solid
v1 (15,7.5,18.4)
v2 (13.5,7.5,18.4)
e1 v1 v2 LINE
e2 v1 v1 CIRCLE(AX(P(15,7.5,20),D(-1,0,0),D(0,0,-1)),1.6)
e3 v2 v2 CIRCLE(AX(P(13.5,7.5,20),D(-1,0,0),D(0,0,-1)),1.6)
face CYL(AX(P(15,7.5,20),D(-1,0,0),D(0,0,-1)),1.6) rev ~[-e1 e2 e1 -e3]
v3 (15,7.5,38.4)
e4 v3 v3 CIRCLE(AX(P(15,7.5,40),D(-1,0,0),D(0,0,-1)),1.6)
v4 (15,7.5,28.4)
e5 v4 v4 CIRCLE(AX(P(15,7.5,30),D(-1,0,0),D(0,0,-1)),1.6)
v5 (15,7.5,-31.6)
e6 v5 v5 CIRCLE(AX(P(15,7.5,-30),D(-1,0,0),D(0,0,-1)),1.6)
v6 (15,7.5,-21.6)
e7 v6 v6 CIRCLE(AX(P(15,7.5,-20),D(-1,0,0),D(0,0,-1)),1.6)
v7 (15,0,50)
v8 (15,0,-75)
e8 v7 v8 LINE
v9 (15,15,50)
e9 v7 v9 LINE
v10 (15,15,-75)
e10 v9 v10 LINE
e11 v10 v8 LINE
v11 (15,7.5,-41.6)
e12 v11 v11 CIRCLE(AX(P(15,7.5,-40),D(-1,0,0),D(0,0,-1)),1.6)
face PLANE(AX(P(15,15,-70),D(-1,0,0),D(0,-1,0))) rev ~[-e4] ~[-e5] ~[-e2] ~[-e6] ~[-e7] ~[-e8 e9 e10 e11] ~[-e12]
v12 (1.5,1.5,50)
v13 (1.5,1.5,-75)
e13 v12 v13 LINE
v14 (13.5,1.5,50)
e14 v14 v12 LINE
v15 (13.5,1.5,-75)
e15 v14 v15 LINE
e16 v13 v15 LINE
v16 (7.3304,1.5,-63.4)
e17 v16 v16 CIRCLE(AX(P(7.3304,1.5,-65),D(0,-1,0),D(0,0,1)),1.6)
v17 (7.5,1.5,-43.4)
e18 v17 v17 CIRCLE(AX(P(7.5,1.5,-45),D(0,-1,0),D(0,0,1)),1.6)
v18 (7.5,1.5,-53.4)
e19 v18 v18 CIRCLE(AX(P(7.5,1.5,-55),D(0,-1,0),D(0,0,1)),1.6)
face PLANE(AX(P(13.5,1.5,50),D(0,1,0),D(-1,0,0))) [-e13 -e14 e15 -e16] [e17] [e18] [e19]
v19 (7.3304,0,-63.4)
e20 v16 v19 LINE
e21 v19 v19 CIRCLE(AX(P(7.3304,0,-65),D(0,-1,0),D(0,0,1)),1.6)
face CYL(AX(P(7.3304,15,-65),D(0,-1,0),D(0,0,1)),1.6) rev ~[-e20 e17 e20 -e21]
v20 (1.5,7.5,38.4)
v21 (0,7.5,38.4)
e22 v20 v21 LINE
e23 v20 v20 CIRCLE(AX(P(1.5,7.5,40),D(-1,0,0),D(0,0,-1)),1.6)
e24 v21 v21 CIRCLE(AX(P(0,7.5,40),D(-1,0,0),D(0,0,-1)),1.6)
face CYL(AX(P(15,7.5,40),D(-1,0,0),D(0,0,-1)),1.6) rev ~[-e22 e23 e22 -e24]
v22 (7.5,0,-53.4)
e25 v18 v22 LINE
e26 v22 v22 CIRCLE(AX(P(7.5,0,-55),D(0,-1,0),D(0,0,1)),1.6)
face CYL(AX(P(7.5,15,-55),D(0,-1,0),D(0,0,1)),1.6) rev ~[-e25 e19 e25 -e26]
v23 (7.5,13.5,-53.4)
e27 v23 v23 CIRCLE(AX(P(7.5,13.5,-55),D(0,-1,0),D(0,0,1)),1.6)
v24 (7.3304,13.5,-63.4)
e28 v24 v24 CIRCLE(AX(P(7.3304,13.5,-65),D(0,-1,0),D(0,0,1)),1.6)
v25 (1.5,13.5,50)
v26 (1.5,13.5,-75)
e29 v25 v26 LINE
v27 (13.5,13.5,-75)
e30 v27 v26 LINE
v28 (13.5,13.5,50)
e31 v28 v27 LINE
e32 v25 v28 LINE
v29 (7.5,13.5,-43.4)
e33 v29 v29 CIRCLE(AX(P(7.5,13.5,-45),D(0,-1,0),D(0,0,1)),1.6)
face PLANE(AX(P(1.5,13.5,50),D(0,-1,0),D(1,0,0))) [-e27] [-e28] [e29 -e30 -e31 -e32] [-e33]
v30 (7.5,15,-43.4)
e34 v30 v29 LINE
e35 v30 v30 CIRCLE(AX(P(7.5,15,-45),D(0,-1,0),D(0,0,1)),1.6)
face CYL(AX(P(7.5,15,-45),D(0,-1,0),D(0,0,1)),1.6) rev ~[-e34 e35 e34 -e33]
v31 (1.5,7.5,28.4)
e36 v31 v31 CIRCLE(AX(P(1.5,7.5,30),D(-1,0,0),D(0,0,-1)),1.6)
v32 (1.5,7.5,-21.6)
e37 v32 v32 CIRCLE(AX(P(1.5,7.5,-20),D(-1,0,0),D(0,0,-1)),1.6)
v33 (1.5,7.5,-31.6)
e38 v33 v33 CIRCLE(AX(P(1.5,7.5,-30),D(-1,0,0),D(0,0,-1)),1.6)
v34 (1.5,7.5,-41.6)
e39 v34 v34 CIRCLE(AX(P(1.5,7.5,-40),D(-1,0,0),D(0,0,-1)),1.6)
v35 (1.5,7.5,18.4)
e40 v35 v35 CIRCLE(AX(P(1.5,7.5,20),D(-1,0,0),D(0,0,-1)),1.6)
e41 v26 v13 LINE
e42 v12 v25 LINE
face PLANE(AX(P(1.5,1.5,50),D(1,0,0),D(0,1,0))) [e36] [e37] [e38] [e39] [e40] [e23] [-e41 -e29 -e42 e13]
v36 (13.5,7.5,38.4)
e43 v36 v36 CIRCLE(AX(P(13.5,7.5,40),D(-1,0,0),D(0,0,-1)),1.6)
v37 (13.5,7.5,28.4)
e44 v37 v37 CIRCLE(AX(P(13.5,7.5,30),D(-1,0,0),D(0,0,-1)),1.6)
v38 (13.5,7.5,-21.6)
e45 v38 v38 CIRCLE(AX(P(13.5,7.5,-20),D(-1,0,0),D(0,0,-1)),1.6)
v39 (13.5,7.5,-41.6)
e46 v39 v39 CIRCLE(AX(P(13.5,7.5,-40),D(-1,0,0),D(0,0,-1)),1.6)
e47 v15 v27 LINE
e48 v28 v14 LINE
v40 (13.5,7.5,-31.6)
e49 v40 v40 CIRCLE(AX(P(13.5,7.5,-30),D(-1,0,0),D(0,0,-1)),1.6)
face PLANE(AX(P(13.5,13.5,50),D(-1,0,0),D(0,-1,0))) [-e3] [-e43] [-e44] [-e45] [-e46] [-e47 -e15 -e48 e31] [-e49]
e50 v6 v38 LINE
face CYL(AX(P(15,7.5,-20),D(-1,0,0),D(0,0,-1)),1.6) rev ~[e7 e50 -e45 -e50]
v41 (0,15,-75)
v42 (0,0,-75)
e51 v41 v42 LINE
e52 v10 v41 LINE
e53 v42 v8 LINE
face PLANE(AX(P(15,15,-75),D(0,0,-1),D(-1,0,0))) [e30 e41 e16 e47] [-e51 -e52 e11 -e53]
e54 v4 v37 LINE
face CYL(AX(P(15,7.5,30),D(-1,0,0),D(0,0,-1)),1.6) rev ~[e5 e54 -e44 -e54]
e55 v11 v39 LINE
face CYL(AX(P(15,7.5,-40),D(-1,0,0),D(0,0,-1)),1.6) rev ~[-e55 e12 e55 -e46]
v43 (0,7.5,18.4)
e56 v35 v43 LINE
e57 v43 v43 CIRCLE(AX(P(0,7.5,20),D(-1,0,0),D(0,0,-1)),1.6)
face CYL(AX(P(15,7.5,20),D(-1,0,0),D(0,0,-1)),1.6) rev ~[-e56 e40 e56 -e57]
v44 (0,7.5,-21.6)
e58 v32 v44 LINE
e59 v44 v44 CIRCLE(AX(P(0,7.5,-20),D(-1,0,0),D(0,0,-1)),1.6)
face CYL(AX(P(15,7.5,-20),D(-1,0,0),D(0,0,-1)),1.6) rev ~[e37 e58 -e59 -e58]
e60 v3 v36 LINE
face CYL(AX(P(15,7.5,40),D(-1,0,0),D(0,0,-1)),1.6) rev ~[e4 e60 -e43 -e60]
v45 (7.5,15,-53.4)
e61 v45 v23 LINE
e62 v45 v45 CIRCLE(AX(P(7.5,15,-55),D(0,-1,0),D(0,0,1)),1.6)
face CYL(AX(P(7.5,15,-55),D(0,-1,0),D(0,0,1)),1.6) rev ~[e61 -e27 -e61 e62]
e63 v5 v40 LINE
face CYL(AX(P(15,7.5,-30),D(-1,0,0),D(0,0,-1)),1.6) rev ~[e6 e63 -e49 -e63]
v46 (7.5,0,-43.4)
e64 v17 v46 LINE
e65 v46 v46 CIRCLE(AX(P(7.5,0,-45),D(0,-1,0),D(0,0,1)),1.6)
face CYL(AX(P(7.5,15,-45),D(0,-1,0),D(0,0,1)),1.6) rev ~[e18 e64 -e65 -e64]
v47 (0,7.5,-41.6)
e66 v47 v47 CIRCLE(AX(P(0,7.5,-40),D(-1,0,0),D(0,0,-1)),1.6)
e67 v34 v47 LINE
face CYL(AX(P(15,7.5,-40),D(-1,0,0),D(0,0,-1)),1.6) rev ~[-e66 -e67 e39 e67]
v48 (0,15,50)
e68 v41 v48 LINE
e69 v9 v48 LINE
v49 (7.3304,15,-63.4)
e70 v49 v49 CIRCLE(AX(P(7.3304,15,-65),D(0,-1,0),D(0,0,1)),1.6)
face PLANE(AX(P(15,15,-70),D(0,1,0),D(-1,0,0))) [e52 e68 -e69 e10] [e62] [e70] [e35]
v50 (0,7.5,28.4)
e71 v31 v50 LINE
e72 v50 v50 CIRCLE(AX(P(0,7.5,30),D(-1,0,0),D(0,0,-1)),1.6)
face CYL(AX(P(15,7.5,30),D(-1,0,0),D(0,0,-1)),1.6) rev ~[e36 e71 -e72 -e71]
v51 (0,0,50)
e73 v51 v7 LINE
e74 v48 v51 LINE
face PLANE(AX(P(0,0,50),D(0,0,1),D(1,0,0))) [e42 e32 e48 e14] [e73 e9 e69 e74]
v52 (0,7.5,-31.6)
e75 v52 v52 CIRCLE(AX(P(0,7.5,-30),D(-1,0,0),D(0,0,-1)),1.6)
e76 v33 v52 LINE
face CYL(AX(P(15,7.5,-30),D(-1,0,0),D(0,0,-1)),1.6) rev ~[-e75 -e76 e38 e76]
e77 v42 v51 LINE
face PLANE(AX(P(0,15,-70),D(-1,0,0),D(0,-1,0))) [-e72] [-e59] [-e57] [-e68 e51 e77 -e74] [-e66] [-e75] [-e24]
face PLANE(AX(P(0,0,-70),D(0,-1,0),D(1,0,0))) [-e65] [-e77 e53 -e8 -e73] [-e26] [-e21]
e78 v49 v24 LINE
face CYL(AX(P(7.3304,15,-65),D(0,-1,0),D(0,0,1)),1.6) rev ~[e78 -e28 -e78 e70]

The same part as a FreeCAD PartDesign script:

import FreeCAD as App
import Part
import Sketcher
from FreeCAD import Vector
Q = App.Units.Quantity


def add_polygon(sketch, points):
    """Adds a closed chain of lines whose ends are joined by coincident constraints."""
    first, n = sketch.GeometryCount, len(points)
    for a, b in zip(points, points[1:] + points[:1]):
        sketch.addGeometry(Part.LineSegment(App.Vector(*a, 0), App.Vector(*b, 0)), False)
    for i in range(n):
        sketch.addConstraint(Sketcher.Constraint("Coincident", first + i, 2, first + (i + 1) % n, 1))

doc = App.newDocument("Part")
body = doc.addObject("PartDesign::Body", "Body")

sketch1 = body.newObject("Sketcher::SketchObject", "Sketch")
sketch1.AttachmentSupport = (doc.getObject("XY_Plane"), [""])
sketch1.MapMode = "FlatFace"
add_polygon(sketch1, [(0, 15), (0, 0), (15, 0), (15, 15)])
sketch1.addConstraint([
    Sketcher.Constraint("Vertical", 0),
    Sketcher.Constraint("Horizontal", 1),
    Sketcher.Constraint("Vertical", 2),
    Sketcher.Constraint("Horizontal", 3),
    Sketcher.Constraint("Coincident", 0, 2, -1, 1),
    Sketcher.Constraint("Equal", 3, 0),
    Sketcher.Constraint("DistanceX", 1, 1, 1, 2, Q("15 mm")),
])
pad1 = body.newObject("PartDesign::Pad", "Pad")
pad1.Profile = sketch1
pad1.Length = 50

sketch2 = body.newObject("Sketcher::SketchObject", "Sketch001")
sketch2.AttachmentSupport = (doc.getObject("XY_Plane"), [""])
sketch2.MapMode = "FlatFace"
add_polygon(sketch2, [(0, 0), (0, 15), (15, 15), (15, 0)])
sketch2.addConstraint([
    Sketcher.Constraint("Vertical", 0),
    Sketcher.Constraint("Horizontal", 1),
    Sketcher.Constraint("Vertical", 2),
    Sketcher.Constraint("Horizontal", 3),
    Sketcher.Constraint("Coincident", 3, 2, -1, 1),
    Sketcher.Constraint("Equal", 3, 0),
    Sketcher.Constraint("DistanceX", 1, 1, 1, 2, Q("15 mm")),
])
pad2 = body.newObject("PartDesign::Pad", "Pad001")
pad2.Profile = sketch2
pad2.Length = 135
pad2.Reversed = True

sketch3 = body.newObject("Sketcher::SketchObject", "Sketch002")
sketch3.AttachmentSupport = (doc.getObject("XZ_Plane"), [""])
sketch3.MapMode = "FlatFace"
sketch3.AttachmentOffset = App.Placement(Vector(0, 0, -15), App.Rotation())
add_polygon(sketch3, [(0, -55), (15, -55), (15, -135), (0, -135)])
sketch3.addConstraint([
    Sketcher.Constraint("Horizontal", 0),
    Sketcher.Constraint("Vertical", 1),
    Sketcher.Constraint("Horizontal", 2),
    Sketcher.Constraint("Vertical", 3),
    Sketcher.Constraint("PointOnObject", 2, 2, -2),
    Sketcher.Constraint("DistanceX", 0, 1, 0, 2, Q("15 mm")),
    Sketcher.Constraint("DistanceY", 1, 2, 1, 1, Q("80 mm")),
    Sketcher.Constraint("DistanceY", 0, 2, -1, 1, Q("55 mm")),
])
pocket1 = body.newObject("PartDesign::Pocket", "Pocket")
pocket1.Profile = sketch3
pocket1.Length = 135
pocket1.Reversed = True

sketch4 = body.newObject("Sketcher::SketchObject", "Sketch003")
sketch4.AttachmentSupport = (doc.getObject("XY_Plane"), [""])
sketch4.MapMode = "FlatFace"
sketch4.AttachmentOffset = App.Placement(Vector(0, 0, -55), App.Rotation())
add_polygon(sketch4, [(0, 0), (0, 15), (15, 15), (15, 0)])
sketch4.addConstraint([
    Sketcher.Constraint("Vertical", 0),
    Sketcher.Constraint("Horizontal", 1),
    Sketcher.Constraint("Vertical", 2),
    Sketcher.Constraint("Horizontal", 3),
    Sketcher.Constraint("Coincident", 3, 2, -1, 1),
    Sketcher.Constraint("Equal", 3, 0),
    Sketcher.Constraint("DistanceX", 1, 1, 1, 2, Q("15 mm")),
])
pad3 = body.newObject("PartDesign::Pad", "Pad002")
pad3.Profile = sketch4
pad3.Length = 15
pad3.Reversed = True

sketch5 = body.newObject("Sketcher::SketchObject", "Sketch004")
sketch5.AttachmentSupport = (doc.getObject("YZ_Plane"), [""])
sketch5.MapMode = "FlatFace"
sketch5.AttachmentOffset = App.Placement(Vector(0, 0, 15), App.Rotation())
sketch5.addGeometry([
    Part.Circle(Vector(7.5, -40, 0), Vector(0, 0, 1), 1.6),
    Part.Circle(Vector(7.5, -30, 0), Vector(0, 0, 1), 1.6),
    Part.Circle(Vector(7.5, -20, 0), Vector(0, 0, 1), 1.6),
], False)
sketch5.addConstraint([
    Sketcher.Constraint("Equal", 0, 1),
    Sketcher.Constraint("Equal", 1, 2),
    Sketcher.Constraint("Vertical", 0, 3, 1, 3),
    Sketcher.Constraint("Vertical", 1, 3, 2, 3),
    Sketcher.Constraint("Diameter", 0, Q("3.2 mm")),
    Sketcher.Constraint("DistanceY", 0, 3, -1, 1, Q("40 mm")),
    Sketcher.Constraint("DistanceY", 1, 3, -1, 1, Q("30 mm")),
    Sketcher.Constraint("DistanceY", 2, 3, -1, 1, Q("20 mm")),
    Sketcher.Constraint("DistanceX", -1, 1, 0, 3, Q("7.5 mm")),
])
doc.recompute()
hole = body.newObject("PartDesign::Hole", "Hole")
hole.Profile = sketch5
hole.ThreadType = "None"
hole.Diameter = 3.2
hole.DepthType = "ThroughAll"

sketch6 = body.newObject("Sketcher::SketchObject", "Sketch005")
sketch6.AttachmentSupport = (doc.getObject("YZ_Plane"), [""])
sketch6.MapMode = "FlatFace"
sketch6.AttachmentOffset = App.Placement(Vector(0, 0, 15), App.Rotation())
sketch6.addGeometry([
    Part.Circle(Vector(7.5, 40, 0), Vector(0, 0, 1), 1.6),
    Part.Circle(Vector(7.5, 30, 0), Vector(0, 0, 1), 1.6),
], False)
sketch6.addConstraint([
    Sketcher.Constraint("Equal", 0, 1),
    Sketcher.Constraint("Vertical", 0, 3, 1, 3),
    Sketcher.Constraint("Diameter", 0, Q("3.2 mm")),
    Sketcher.Constraint("DistanceY", -1, 1, 0, 3, Q("40 mm")),
    Sketcher.Constraint("DistanceY", -1, 1, 1, 3, Q("30 mm")),
    Sketcher.Constraint("DistanceX", -1, 1, 0, 3, Q("7.5 mm")),
])
doc.recompute()
hole2 = body.newObject("PartDesign::Hole", "Hole001")
hole2.Profile = sketch6
hole2.ThreadType = "None"
hole2.Diameter = 3.2
hole2.DepthType = "ThroughAll"

sketch7 = body.newObject("Sketcher::SketchObject", "Sketch006")
sketch7.AttachmentSupport = (doc.getObject("YZ_Plane"), [""])
sketch7.MapMode = "FlatFace"
sketch7.AttachmentOffset = App.Placement(Vector(0, 0, 15), App.Rotation())
sketch7.addGeometry(Part.Circle(Vector(7.5, 20, 0), Vector(0, 0, 1), 1.6), False)
sketch7.addConstraint([
    Sketcher.Constraint("Diameter", 0, Q("3.2 mm")),
    Sketcher.Constraint("DistanceY", -1, 1, 0, 3, Q("20 mm")),
    Sketcher.Constraint("DistanceX", -1, 1, 0, 3, Q("7.5 mm")),
])
doc.recompute()
hole3 = body.newObject("PartDesign::Hole", "Hole002")
hole3.Profile = sketch7
hole3.ThreadType = "None"
hole3.Diameter = 3.2
hole3.DepthType = "ThroughAll"

sketch8 = body.newObject("Sketcher::SketchObject", "Sketch007")
sketch8.AttachmentSupport = (doc.getObject("XY_Plane"), [""])
sketch8.MapMode = "FlatFace"
sketch8.AttachmentOffset = App.Placement(Vector(0, 0, -70), App.Rotation())
add_polygon(sketch8, [(0, 15), (15, 15), (15, 0), (0, 0)])
sketch8.addConstraint([
    Sketcher.Constraint("Horizontal", 0),
    Sketcher.Constraint("Vertical", 1),
    Sketcher.Constraint("Horizontal", 2),
    Sketcher.Constraint("Vertical", 3),
    Sketcher.Constraint("Coincident", 2, 2, -1, 1),
    Sketcher.Constraint("Equal", 2, 1),
    Sketcher.Constraint("DistanceX", 0, 1, 0, 2, Q("15 mm")),
])
pad4 = body.newObject("PartDesign::Pad", "Pad003")
pad4.Profile = sketch8
pad4.Length = 5
pad4.Reversed = True

sketch9 = body.newObject("Sketcher::SketchObject", "Sketch008")
sketch9.AttachmentSupport = (doc.getObject("XZ_Plane"), [""])
sketch9.MapMode = "FlatFace"
sketch9.AttachmentOffset = App.Placement(Vector(0, 0, -15), App.Rotation())
sketch9.addGeometry([
    Part.Circle(Vector(7.5, -45, 0), Vector(0, 0, 1), 1.6),
    Part.Circle(Vector(7.5, -55, 0), Vector(0, 0, 1), 1.6),
    Part.Circle(Vector(7.3, -65, 0), Vector(0, 0, 1), 1.6),
], False)
sketch9.addConstraint([
    Sketcher.Constraint("Equal", 0, 1),
    Sketcher.Constraint("Equal", 1, 2),
    Sketcher.Constraint("Vertical", 0, 3, 1, 3),
    Sketcher.Constraint("Diameter", 0, Q("3.2 mm")),
    Sketcher.Constraint("DistanceY", 0, 3, -1, 1, Q("45 mm")),
    Sketcher.Constraint("DistanceY", 1, 3, -1, 1, Q("55 mm")),
    Sketcher.Constraint("DistanceY", 2, 3, -1, 1, Q("65 mm")),
    Sketcher.Constraint("DistanceX", -1, 1, 0, 3, Q("7.5 mm")),
    Sketcher.Constraint("DistanceX", -1, 1, 2, 3, Q("7.3304 mm")),
])
doc.recompute()
hole4 = body.newObject("PartDesign::Hole", "Hole003")
hole4.Profile = sketch9
hole4.ThreadType = "None"
hole4.Diameter = 3.2
hole4.DepthType = "ThroughAll"
hole4.Reversed = True

sketch10 = body.newObject("Sketcher::SketchObject", "Sketch009")
sketch10.AttachmentSupport = (doc.getObject("XY_Plane"), [""])
sketch10.MapMode = "FlatFace"
sketch10.AttachmentOffset = App.Placement(Vector(0, 0, 50), App.Rotation())
add_polygon(sketch10, [(14, 14), (2, 14), (2, 2), (14, 2)])
sketch10.addConstraint([
    Sketcher.Constraint("Horizontal", 0),
    Sketcher.Constraint("Vertical", 1),
    Sketcher.Constraint("Horizontal", 2),
    Sketcher.Constraint("Vertical", 3),
    Sketcher.Constraint("Equal", 2, 1),
    Sketcher.Constraint("DistanceX", 0, 2, 0, 1, Q("12 mm")),
    Sketcher.Constraint("DistanceX", -1, 1, 0, 2, Q("1.5 mm")),
    Sketcher.Constraint("DistanceY", -1, 1, 1, 2, Q("1.5 mm")),
])
pocket2 = body.newObject("PartDesign::Pocket", "Pocket001")
pocket2.Profile = sketch10
pocket2.Length = 500

doc.recompute()
